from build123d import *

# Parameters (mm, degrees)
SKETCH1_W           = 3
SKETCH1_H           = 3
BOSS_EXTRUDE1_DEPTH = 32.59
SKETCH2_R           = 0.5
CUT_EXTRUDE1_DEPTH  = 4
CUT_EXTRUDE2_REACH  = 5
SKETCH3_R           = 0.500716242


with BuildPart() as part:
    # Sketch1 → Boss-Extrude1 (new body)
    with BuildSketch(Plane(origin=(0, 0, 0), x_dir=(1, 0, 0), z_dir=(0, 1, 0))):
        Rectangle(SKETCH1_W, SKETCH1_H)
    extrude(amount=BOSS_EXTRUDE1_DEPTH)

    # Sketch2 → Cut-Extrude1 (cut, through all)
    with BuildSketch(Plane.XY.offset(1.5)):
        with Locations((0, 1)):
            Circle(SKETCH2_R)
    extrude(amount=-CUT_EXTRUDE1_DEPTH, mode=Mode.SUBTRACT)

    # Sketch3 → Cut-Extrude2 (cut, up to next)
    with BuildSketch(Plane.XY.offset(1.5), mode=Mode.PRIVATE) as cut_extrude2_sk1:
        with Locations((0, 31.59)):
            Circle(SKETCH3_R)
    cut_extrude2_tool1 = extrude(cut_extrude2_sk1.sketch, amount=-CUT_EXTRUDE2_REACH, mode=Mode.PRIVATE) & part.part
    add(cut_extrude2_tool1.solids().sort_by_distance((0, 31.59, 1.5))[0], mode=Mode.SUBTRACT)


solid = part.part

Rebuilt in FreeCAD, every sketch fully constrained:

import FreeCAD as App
import Part
import Sketcher
from FreeCAD import Vector

doc = App.newDocument("Part")
body = doc.addObject("PartDesign::Body", "Body")

sketch1 = body.newObject("Sketcher::SketchObject", "Sketch")
sketch1.AttachmentSupport = (doc.getObject("XZ_Plane"), [""])
sketch1.MapMode = "FlatFace"
sketch1.addGeometry([
    Part.LineSegment(Vector(-1.5, -1.5, 0), Vector(-1.5, 1.5, 0)),
    Part.LineSegment(Vector(-1.5, 1.5, 0), Vector(1.5, 1.5, 0)),
    Part.LineSegment(Vector(1.5, 1.5, 0), Vector(1.5, -1.5, 0)),
    Part.LineSegment(Vector(1.5, -1.5, 0), Vector(-1.5, -1.5, 0)),
], False)
sketch1.addConstraint([
    Sketcher.Constraint("Coincident", 0, 2, 1, 1),
    Sketcher.Constraint("Coincident", 1, 2, 2, 1),
    Sketcher.Constraint("Coincident", 2, 2, 3, 1),
    Sketcher.Constraint("Coincident", 3, 2, 0, 1),
    Sketcher.Constraint("Vertical", 0),
    Sketcher.Constraint("Horizontal", 1),
    Sketcher.Constraint("Vertical", 2),
    Sketcher.Constraint("Horizontal", 3),
    Sketcher.Constraint("Symmetric", 0, 2, 2, 2, -1, 1),
    Sketcher.Constraint("Equal", 3, 0),
    Sketcher.Constraint("DistanceX", 1, 1, 1, 2, 3.0),
])
pad1 = body.newObject("PartDesign::Pad", "Pad")
pad1.Profile = sketch1
pad1.Length = 32.59
pad1.Reversed = True

sketch2 = body.newObject("Sketcher::SketchObject", "Sketch001")
sketch2.AttachmentSupport = (doc.getObject("XY_Plane"), [""])
sketch2.MapMode = "FlatFace"
sketch2.AttachmentOffset = App.Placement(Vector(0, 0, 1.5), App.Rotation())
sketch2.addGeometry(Part.Circle(Vector(0, 1, 0), Vector(0, 0, 1), 0.5), False)
sketch2.addConstraint([
    Sketcher.Constraint("PointOnObject", 0, 3, -2),
    Sketcher.Constraint("Diameter", 0, 1.0),
    Sketcher.Constraint("DistanceY", -1, 1, 0, 3, 1.0),
])
pocket1 = body.newObject("PartDesign::Pocket", "Pocket")
pocket1.Profile = sketch2
pocket1.Type = "ThroughAll"

sketch3 = body.newObject("Sketcher::SketchObject", "Sketch002")
sketch3.AttachmentSupport = (doc.getObject("XY_Plane"), [""])
sketch3.MapMode = "FlatFace"
sketch3.AttachmentOffset = App.Placement(Vector(0, 0, 1.5), App.Rotation())
sketch3.addGeometry(Part.Circle(Vector(0, 31.59, 0), Vector(0, 0, 1), 0.500716), False)
sketch3.addConstraint([
    Sketcher.Constraint("PointOnObject", 0, 3, -2),
    Sketcher.Constraint("DistanceY", -1, 1, 0, 3, 31.59),
    Sketcher.Constraint("Diameter", 0, 1.001432),
])
pocket2 = body.newObject("PartDesign::Pocket", "Pocket001")
pocket2.Profile = sketch3
pocket2.Type = "UpToFirst"

doc.recompute()
